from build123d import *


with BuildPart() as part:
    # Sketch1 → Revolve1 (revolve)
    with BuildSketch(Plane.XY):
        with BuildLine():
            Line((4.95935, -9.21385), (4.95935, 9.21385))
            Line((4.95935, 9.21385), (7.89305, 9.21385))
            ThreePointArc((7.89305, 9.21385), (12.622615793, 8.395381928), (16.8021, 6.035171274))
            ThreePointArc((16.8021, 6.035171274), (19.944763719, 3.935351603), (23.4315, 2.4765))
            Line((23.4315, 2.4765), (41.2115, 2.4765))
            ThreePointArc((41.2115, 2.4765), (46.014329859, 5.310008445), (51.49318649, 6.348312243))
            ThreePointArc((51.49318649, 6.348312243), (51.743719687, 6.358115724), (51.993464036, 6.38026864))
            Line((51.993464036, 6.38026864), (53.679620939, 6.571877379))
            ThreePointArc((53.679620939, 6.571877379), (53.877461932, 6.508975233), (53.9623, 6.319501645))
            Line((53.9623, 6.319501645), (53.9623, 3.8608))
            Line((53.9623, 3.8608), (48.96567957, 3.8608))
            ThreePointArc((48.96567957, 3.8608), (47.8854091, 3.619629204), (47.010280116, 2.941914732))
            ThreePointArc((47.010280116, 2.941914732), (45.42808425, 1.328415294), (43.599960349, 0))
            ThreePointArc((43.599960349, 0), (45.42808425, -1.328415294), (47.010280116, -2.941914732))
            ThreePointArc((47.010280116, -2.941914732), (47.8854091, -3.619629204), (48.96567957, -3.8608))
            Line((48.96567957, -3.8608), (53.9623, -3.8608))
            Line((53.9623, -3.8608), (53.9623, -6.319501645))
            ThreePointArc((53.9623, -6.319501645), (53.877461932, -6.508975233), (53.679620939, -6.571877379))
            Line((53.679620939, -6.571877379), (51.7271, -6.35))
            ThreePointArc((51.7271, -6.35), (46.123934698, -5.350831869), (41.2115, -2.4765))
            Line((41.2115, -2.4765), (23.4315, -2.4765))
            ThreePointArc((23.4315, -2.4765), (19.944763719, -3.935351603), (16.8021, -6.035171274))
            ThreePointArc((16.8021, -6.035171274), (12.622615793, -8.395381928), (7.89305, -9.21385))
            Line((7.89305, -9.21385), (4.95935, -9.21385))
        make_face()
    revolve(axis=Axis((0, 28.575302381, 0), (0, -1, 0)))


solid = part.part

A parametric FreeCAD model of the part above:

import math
import FreeCAD as App
import Part
import Sketcher

V = App.Vector
Q = App.Units.Quantity

doc = App.newDocument("Part")
body = doc.addObject("PartDesign::Body", "Body")

# Sketch on XY plane
sketch1 = doc.addObject("Sketcher::SketchObject", "Sketch")
body.addObject(sketch1)
sketch1.AttachmentSupport = (doc.XY_Plane, [""])
sketch1.MapMode = "FlatFace"
sketch1.addGeometry([
    Part.LineSegment(V(4.96, 9.21, 0), V(4.96, -9.21, 0)),  # 0
    Part.LineSegment(V(4.96, -9.21, 0), V(7.89, -9.21, 0)),  # 1
    Part.ArcOfCircle(Part.Circle(V(7.89, 4.86, 0), V(0, 0, 1), 14.07), math.radians(-90), math.radians(-51)),  # 2
    Part.ArcOfCircle(Part.Circle(V(29.23, -21.24, 0), V(0, 0, 1), 19.64), math.radians(107), math.radians(129)),  # 3
    Part.LineSegment(V(23.43, -2.48, 0), V(41.21, -2.48, 0)),  # 4
    Part.ArcOfCircle(Part.Circle(V(51.73, 9.86, 0), V(0, 0, 1), 16.21), math.radians(-130), math.radians(-90)),  # 5
    Part.LineSegment(V(51.73, -6.35, 0), V(53.68, -6.57, 0)),  # 6
    Part.ArcOfCircle(Part.Circle(V(53.71, -6.32, 0), V(0, 0, 1), 0.25), math.radians(-96), math.radians(0)),  # 7
    Part.LineSegment(V(53.96, -6.32, 0), V(53.96, -3.86, 0)),  # 8
    Part.LineSegment(V(53.96, -3.86, 0), V(48.97, -3.86, 0)),  # 9
    Part.ArcOfCircle(Part.Circle(V(48.97, -1.32, 0), V(0, 0, 1), 2.54), math.radians(-140), math.radians(-90)),  # 10
    Part.ArcOfCircle(Part.Circle(V(36.57, -11.6, 0), V(0, 0, 1), 13.56), math.radians(39.66), math.radians(58.77)),  # 11
    Part.ArcOfCircle(Part.Circle(V(36.57, 11.6, 0), V(0, 0, 1), 13.56), math.radians(-58.77), math.radians(-39.66)),  # 12
    Part.ArcOfCircle(Part.Circle(V(48.97, 1.32, 0), V(0, 0, 1), 2.54), math.radians(90), math.radians(140)),  # 13
    Part.LineSegment(V(48.97, 3.86, 0), V(53.96, 3.86, 0)),  # 14
    Part.LineSegment(V(53.96, 3.86, 0), V(53.96, 6.32, 0)),  # 15
    Part.ArcOfCircle(Part.Circle(V(53.71, 6.32, 0), V(0, 0, 1), 0.25), math.radians(0), math.radians(96)),  # 16
    Part.LineSegment(V(53.68, 6.57, 0), V(51.99, 6.38, 0)),  # 17
    Part.ArcOfCircle(Part.Circle(V(51.42, 11.43, 0), V(0, 0, 1), 5.08), math.radians(-89.17), math.radians(-83.52)),  # 18
    Part.ArcOfCircle(Part.Circle(V(51.73, -9.86, 0), V(0, 0, 1), 16.21), math.radians(91), math.radians(130)),  # 19
    Part.LineSegment(V(41.21, 2.48, 0), V(23.43, 2.48, 0)),  # 20
    Part.ArcOfCircle(Part.Circle(V(29.23, 21.24, 0), V(0, 0, 1), 19.64), math.radians(-129), math.radians(-107)),  # 21
    Part.ArcOfCircle(Part.Circle(V(7.89, -4.86, 0), V(0, 0, 1), 14.07), math.radians(51), math.radians(90)),  # 22
    Part.LineSegment(V(7.89, 9.21, 0), V(4.96, 9.21, 0)),  # 23
], False)
sketch1.addConstraint([
    Sketcher.Constraint("Coincident", 0, 2, 1, 1),
    Sketcher.Constraint("Tangent", 1, 2, 2, 1),
    Sketcher.Constraint("Tangent", 2, 2, 3, 2),
    Sketcher.Constraint("Coincident", 3, 1, 4, 1),
    Sketcher.Constraint("Coincident", 4, 2, 5, 1),
    Sketcher.Constraint("Coincident", 5, 2, 6, 1),
    Sketcher.Constraint("Tangent", 6, 2, 7, 1),
    Sketcher.Constraint("Tangent", 7, 2, 8, 1),
    Sketcher.Constraint("Coincident", 8, 2, 9, 1),
    Sketcher.Constraint("Tangent", 9, 2, 10, 2),
    Sketcher.Constraint("Tangent", 10, 1, 11, 1),
    Sketcher.Constraint("Coincident", 11, 2, 12, 1),
    Sketcher.Constraint("Tangent", 12, 2, 13, 2),
    Sketcher.Constraint("Tangent", 13, 1, 14, 1),
    Sketcher.Constraint("Coincident", 14, 2, 15, 1),
    Sketcher.Constraint("Tangent", 15, 2, 16, 1),
    Sketcher.Constraint("Tangent", 16, 2, 17, 1),
    Sketcher.Constraint("Tangent", 17, 2, 18, 2),
    Sketcher.Constraint("Tangent", 18, 1, 19, 1),
    Sketcher.Constraint("Coincident", 19, 2, 20, 1),
    Sketcher.Constraint("Coincident", 20, 2, 21, 2),
    Sketcher.Constraint("Tangent", 21, 1, 22, 1),
    Sketcher.Constraint("Tangent", 22, 2, 23, 1),
    Sketcher.Constraint("Coincident", 23, 2, 0, 1),
    Sketcher.Constraint("Vertical", 0),
    Sketcher.Constraint("Horizontal", 1),
    Sketcher.Constraint("Horizontal", 4),
    Sketcher.Constraint("Vertical", 8),
    Sketcher.Constraint("Horizontal", 9),
    Sketcher.Constraint("Horizontal", 14),
    Sketcher.Constraint("Vertical", 15),
    Sketcher.Constraint("Horizontal", 20),
    Sketcher.Constraint("Horizontal", 23),
    Sketcher.Constraint("Equal", 11, 12),
    Sketcher.Constraint("Equal", 10, 13),
    Sketcher.Constraint("Equal", 7, 16),
    Sketcher.Constraint("Equal", 5, 19),
    Sketcher.Constraint("Equal", 3, 21),
    Sketcher.Constraint("Equal", 2, 22),
    Sketcher.Constraint("Symmetric", 11, 3, 12, 3, -1),
    Sketcher.Constraint("Symmetric", 7, 3, 16, 3, -1),
    Sketcher.Constraint("Symmetric", 5, 3, 19, 3, -1),
    Sketcher.Constraint("Symmetric", 3, 3, 21, 3, -1),
    Sketcher.Constraint("Vertical", 10, 3, 13, 3),
    Sketcher.Constraint("Vertical", 2, 3, 22, 3),
    Sketcher.Constraint("Vertical", 19, 3, 5, 2),
    Sketcher.Constraint("Vertical", 6, 2, 16, 2),
    Sketcher.Constraint("Vertical", 4, 2, 19, 2),
    Sketcher.Constraint("Radius", 10, Q("0.1 in")),
    Sketcher.Constraint("Radius", 18, Q("0.2 in")),
    Sketcher.Constraint("Radius", 7, Q("0.01 in")),
    Sketcher.Constraint("DistanceX", 4, 1, 4, 2, Q("0.7 in")),
    Sketcher.Constraint("DistanceY", 5, 2, -1, 1, Q("0.25 in")),
    Sketcher.Constraint("DistanceX", 1, 1, 1, 2, Q("0.1155 in")),
    Sketcher.Constraint("DistanceY", 0, 2, 0, 1, Q("0.7255 in")),
    Sketcher.Constraint("DistanceY", 10, 3, -1, 1, Q("0.052 in")),
    Sketcher.Constraint("Radius", 2, Q("14.074271 mm")),
    Sketcher.Constraint("DistanceX", 5, 3, 7, 3, Q("0.078 in")),
    Sketcher.Constraint("DistanceX", 2, 2, 3, 1, Q("0.261 in")),
    Sketcher.Constraint("DistanceX", 4, 2, 19, 3, Q("0.414 in")),
    Sketcher.Constraint("DistanceY", 4, 2, 19, 2, Q("0.195 in")),
    Sketcher.Constraint("DistanceY", 8, 1, 8, 2, Q("2.458702 mm")),
    Sketcher.Constraint("DistanceX", -1, 1, 5, 3, Q("2.0365 in")),
    Sketcher.Constraint("Radius", 3, Q("19.637095 mm")),
    Sketcher.Constraint("Radius", 11, Q("13.563613 mm")),
    Sketcher.Constraint("DistanceX", 9, 2, 9, 1, Q("4.99662 mm")),
    Sketcher.Constraint("DistanceX", 10, 1, 9, 2, Q("1.955399 mm")),
])
revolution = doc.addObject("PartDesign::Revolution", "Revolution")
body.addObject(revolution)
revolution.Profile = sketch1
revolution.ReferenceAxis = (sketch1, ["V_Axis"])
revolution.Angle = 360

doc.recompute()
